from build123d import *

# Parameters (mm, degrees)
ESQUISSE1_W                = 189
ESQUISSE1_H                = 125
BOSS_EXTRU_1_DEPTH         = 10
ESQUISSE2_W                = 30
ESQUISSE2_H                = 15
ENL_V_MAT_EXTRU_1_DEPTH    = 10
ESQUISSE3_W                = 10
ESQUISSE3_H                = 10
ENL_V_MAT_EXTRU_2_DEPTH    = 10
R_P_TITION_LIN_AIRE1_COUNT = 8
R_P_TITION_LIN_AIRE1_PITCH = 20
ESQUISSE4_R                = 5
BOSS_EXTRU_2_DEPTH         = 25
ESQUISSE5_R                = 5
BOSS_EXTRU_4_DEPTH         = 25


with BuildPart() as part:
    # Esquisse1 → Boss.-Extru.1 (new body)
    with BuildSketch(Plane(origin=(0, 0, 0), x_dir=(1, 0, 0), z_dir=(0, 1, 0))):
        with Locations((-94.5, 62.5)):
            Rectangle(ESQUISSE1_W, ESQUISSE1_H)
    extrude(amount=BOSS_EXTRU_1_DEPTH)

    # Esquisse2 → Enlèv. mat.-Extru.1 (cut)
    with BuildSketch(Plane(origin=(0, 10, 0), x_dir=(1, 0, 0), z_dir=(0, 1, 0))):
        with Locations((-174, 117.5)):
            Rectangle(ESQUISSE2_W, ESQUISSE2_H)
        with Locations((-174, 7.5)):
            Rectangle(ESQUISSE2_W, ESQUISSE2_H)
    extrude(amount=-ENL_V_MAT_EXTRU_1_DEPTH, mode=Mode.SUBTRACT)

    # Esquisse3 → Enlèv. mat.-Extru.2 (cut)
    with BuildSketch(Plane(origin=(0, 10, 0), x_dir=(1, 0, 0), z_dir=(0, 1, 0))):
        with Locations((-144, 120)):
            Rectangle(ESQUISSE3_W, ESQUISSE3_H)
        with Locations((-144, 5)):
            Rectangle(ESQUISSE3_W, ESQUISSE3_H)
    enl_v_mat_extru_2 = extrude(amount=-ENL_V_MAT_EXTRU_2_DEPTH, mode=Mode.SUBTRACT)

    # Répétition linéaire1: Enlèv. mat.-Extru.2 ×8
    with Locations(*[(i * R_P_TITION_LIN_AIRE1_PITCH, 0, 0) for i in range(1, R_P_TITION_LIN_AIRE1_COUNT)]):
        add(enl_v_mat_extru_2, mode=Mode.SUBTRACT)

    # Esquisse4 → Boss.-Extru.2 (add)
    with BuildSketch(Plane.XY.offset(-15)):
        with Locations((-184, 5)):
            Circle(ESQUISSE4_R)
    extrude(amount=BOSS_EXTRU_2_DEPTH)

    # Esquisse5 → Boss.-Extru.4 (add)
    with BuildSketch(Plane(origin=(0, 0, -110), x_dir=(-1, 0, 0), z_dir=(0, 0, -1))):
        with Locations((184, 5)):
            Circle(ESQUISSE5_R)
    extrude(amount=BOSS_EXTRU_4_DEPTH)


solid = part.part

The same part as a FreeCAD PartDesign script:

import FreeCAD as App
import Part
import Sketcher

V = App.Vector
Q = App.Units.Quantity


def add_polygon(sketch, points):
    """Adds a closed chain of lines whose ends are joined by coincident constraints."""
    first, n = sketch.GeometryCount, len(points)
    for a, b in zip(points, points[1:] + points[:1]):
        sketch.addGeometry(Part.LineSegment(App.Vector(*a, 0), App.Vector(*b, 0)), False)
    for i in range(n):
        sketch.addConstraint(Sketcher.Constraint("Coincident", first + i, 2, first + (i + 1) % n, 1))

doc = App.newDocument("Part")
params = doc.addObject("Spreadsheet::Sheet", "Params")
for row, (alias, value) in enumerate([
    ("sketch1_width", "189 mm"),
    ("sketch1_height", "125 mm"),
    ("pad1_length", "10 mm"),
    ("sketch2_width", "30 mm"),
    ("sketch2_height", "15 mm"),
    ("pocket1_length", "10 mm"),
    ("sketch3_width", "10 mm"),
    ("pocket2_length", "10 mm"),
    ("linearpattern_pitch", "20 mm"),
    ("sketch4_diameter", "10 mm"),
    ("pad2_length", "25 mm"),
    ("sketch5_diameter", "10 mm"),
    ("pad3_length", "25 mm"),
], start=1):
    params.set(f"A{row}", alias)
    params.set(f"B{row}", "=" + value)
    params.setAlias(f"B{row}", alias)

body = doc.addObject("PartDesign::Body", "Body")

# Sketch on XZ plane
sketch1 = body.newObject("Sketcher::SketchObject", "Sketch")
sketch1.AttachmentSupport = (doc.getObject("XZ_Plane"), [""])
sketch1.MapMode = "FlatFace"
add_polygon(sketch1, [(-189, -125), (-189, 0), (0, 0), (0, -125)])  # lines 0-3
sketch1.addConstraint(Sketcher.Constraint("Vertical", 0))
sketch1.addConstraint(Sketcher.Constraint("Horizontal", 1))
sketch1.addConstraint(Sketcher.Constraint("Vertical", 2))
sketch1.addConstraint(Sketcher.Constraint("Horizontal", 3))
sketch1.addConstraint(Sketcher.Constraint("Coincident", 1, 2, -1, 1))
sketch1.addConstraint(Sketcher.Constraint("DistanceX", 1, 1, 1, 2, Q("189 mm")))
sketch1.addConstraint(Sketcher.Constraint("DistanceY", 0, 1, 0, 2, Q("125 mm")))
sketch1.setExpression("Constraints[9]", "Params.sketch1_width")
sketch1.setExpression("Constraints[10]", "Params.sketch1_height")
pad1 = body.newObject("PartDesign::Pad", "Pad")
pad1.Profile = sketch1
pad1.setExpression("Length", "Params.pad1_length")
pad1.Reversed = True

# Sketch on XZ plane
sketch2 = body.newObject("Sketcher::SketchObject", "Sketch001")
sketch2.AttachmentSupport = (doc.getObject("XZ_Plane"), [""])
sketch2.MapMode = "FlatFace"
sketch2.AttachmentOffset = App.Placement(V(0, 0, -10), App.Rotation())
add_polygon(sketch2, [(-189, -125), (-189, -110), (-159, -110), (-159, -125)])  # lines 0-3
add_polygon(sketch2, [(-189, -15), (-189, 0), (-159, 0), (-159, -15)])  # lines 4-7
sketch2.addConstraint(Sketcher.Constraint("Vertical", 0))
sketch2.addConstraint(Sketcher.Constraint("Horizontal", 1))
sketch2.addConstraint(Sketcher.Constraint("Vertical", 2))
sketch2.addConstraint(Sketcher.Constraint("Horizontal", 3))
sketch2.addConstraint(Sketcher.Constraint("Vertical", 4))
sketch2.addConstraint(Sketcher.Constraint("Horizontal", 5))
sketch2.addConstraint(Sketcher.Constraint("Vertical", 6))
sketch2.addConstraint(Sketcher.Constraint("Horizontal", 7))
sketch2.addConstraint(Sketcher.Constraint("PointOnObject", 4, 2, -1))
sketch2.addConstraint(Sketcher.Constraint("Vertical", 3, 2, 4, 2))
sketch2.addConstraint(Sketcher.Constraint("Vertical", 2, 2, 5, 2))
sketch2.addConstraint(Sketcher.Constraint("Equal", 2, 4))
sketch2.addConstraint(Sketcher.Constraint("DistanceX", 1, 1, 1, 2, Q("30 mm")))
sketch2.addConstraint(Sketcher.Constraint("DistanceY", 0, 1, 0, 2, Q("15 mm")))
sketch2.addConstraint(Sketcher.Constraint("DistanceX", 0, 2, -1, 1, Q("189 mm")))
sketch2.addConstraint(Sketcher.Constraint("DistanceY", 0, 2, -1, 1, Q("110 mm")))
sketch2.setExpression("Constraints[20]", "Params.sketch2_width")
sketch2.setExpression("Constraints[21]", "Params.sketch2_height")
pocket1 = body.newObject("PartDesign::Pocket", "Pocket")
pocket1.Profile = sketch2
pocket1.setExpression("Length", "Params.pocket1_length")
pocket1.Reversed = True

# Sketch on XZ plane
sketch3 = body.newObject("Sketcher::SketchObject", "Sketch002")
sketch3.AttachmentSupport = (doc.getObject("XZ_Plane"), [""])
sketch3.MapMode = "FlatFace"
sketch3.AttachmentOffset = App.Placement(V(0, 0, -10), App.Rotation())
add_polygon(sketch3, [(-149, -125), (-149, -115), (-139, -115), (-139, -125)])  # lines 0-3
add_polygon(sketch3, [(-149, -10), (-149, 0), (-139, 0), (-139, -10)])  # lines 4-7
sketch3.addConstraint(Sketcher.Constraint("Vertical", 0))
sketch3.addConstraint(Sketcher.Constraint("Horizontal", 1))
sketch3.addConstraint(Sketcher.Constraint("Vertical", 2))
sketch3.addConstraint(Sketcher.Constraint("Horizontal", 3))
sketch3.addConstraint(Sketcher.Constraint("Vertical", 4))
sketch3.addConstraint(Sketcher.Constraint("Horizontal", 5))
sketch3.addConstraint(Sketcher.Constraint("Vertical", 6))
sketch3.addConstraint(Sketcher.Constraint("Horizontal", 7))
sketch3.addConstraint(Sketcher.Constraint("PointOnObject", 4, 2, -1))
sketch3.addConstraint(Sketcher.Constraint("Vertical", 3, 2, 4, 2))
sketch3.addConstraint(Sketcher.Constraint("Vertical", 2, 2, 5, 2))
sketch3.addConstraint(Sketcher.Constraint("Equal", 7, 0))
sketch3.addConstraint(Sketcher.Constraint("Equal", 2, 4))
sketch3.addConstraint(Sketcher.Constraint("DistanceX", 1, 1, 1, 2, Q("10 mm")))
sketch3.addConstraint(Sketcher.Constraint("DistanceX", 0, 2, -1, 1, Q("149 mm")))
sketch3.addConstraint(Sketcher.Constraint("DistanceY", 0, 2, -1, 1, Q("115 mm")))
sketch3.setExpression("Constraints[21]", "Params.sketch3_width")
pocket2 = body.newObject("PartDesign::Pocket", "Pocket001")
pocket2.Profile = sketch3
pocket2.setExpression("Length", "Params.pocket2_length")
pocket2.Reversed = True
doc.recompute()

linearpattern = body.newObject("PartDesign::LinearPattern", "LinearPattern")
linearpattern.Originals = [pocket2]
linearpattern.Direction = (doc.getObject("X_Axis"), [""])
linearpattern.Mode = "offset"
linearpattern.setExpression("Offset", "Params.linearpattern_pitch")
linearpattern.Occurrences = 8
body.Tip = linearpattern

# Sketch on XY plane
sketch4 = body.newObject("Sketcher::SketchObject", "Sketch003")
sketch4.AttachmentSupport = (doc.getObject("XY_Plane"), [""])
sketch4.MapMode = "FlatFace"
sketch4.AttachmentOffset = App.Placement(V(0, 0, -15), App.Rotation())
sketch4.addGeometry(Part.Circle(V(-184, 5, 0), V(0, 0, 1), 5), False)
sketch4.addConstraint(Sketcher.Constraint("Diameter", 0, Q("10 mm")))
sketch4.addConstraint(Sketcher.Constraint("DistanceX", 0, 3, -1, 1, Q("184 mm")))
sketch4.addConstraint(Sketcher.Constraint("DistanceY", -1, 1, 0, 3, Q("5 mm")))
sketch4.setExpression("Constraints[0]", "Params.sketch4_diameter")
pad2 = body.newObject("PartDesign::Pad", "Pad001")
pad2.Profile = sketch4
pad2.setExpression("Length", "Params.pad2_length")

# Sketch on XY plane
sketch5 = body.newObject("Sketcher::SketchObject", "Sketch004")
sketch5.AttachmentSupport = (doc.getObject("XY_Plane"), [""])
sketch5.MapMode = "FlatFace"
sketch5.AttachmentOffset = App.Placement(V(0, 0, -110), App.Rotation())
sketch5.addGeometry(Part.Circle(V(-184, 5, 0), V(0, 0, 1), 5), False)
sketch5.addConstraint(Sketcher.Constraint("Diameter", 0, Q("10 mm")))
sketch5.addConstraint(Sketcher.Constraint("DistanceX", 0, 3, -1, 1, Q("184 mm")))
sketch5.addConstraint(Sketcher.Constraint("DistanceY", -1, 1, 0, 3, Q("5 mm")))
sketch5.setExpression("Constraints[0]", "Params.sketch5_diameter")
pad3 = body.newObject("PartDesign::Pad", "Pad002")
pad3.Profile = sketch5
pad3.setExpression("Length", "Params.pad3_length")
pad3.Reversed = True

doc.recompute()
